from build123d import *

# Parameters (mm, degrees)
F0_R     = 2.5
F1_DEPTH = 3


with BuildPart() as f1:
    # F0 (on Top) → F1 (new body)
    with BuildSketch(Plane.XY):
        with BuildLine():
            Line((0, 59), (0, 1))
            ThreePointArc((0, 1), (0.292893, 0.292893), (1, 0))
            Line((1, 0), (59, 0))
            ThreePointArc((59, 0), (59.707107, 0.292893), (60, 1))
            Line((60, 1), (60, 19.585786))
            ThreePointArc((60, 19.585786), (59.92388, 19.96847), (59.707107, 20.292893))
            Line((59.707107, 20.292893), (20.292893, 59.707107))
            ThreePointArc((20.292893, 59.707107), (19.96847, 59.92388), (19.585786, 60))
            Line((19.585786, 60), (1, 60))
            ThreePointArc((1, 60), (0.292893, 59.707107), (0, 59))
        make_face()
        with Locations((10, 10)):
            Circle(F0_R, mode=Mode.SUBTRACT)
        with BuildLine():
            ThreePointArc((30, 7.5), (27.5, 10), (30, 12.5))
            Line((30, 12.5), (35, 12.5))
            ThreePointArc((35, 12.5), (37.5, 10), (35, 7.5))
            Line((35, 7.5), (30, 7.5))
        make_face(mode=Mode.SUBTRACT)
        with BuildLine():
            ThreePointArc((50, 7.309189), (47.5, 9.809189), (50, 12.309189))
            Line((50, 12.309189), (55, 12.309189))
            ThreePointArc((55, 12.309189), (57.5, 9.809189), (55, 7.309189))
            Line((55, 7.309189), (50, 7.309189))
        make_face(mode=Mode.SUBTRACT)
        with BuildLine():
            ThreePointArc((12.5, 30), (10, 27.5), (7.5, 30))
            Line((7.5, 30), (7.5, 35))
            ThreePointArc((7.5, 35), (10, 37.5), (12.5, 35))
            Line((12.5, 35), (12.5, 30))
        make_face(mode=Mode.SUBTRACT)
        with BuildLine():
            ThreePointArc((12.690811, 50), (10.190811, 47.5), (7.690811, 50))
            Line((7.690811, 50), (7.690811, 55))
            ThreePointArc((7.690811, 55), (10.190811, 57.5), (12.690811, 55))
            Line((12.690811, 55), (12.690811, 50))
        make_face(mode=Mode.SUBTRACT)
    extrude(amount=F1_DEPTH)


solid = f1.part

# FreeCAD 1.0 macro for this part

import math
import FreeCAD as App
import Part
import Sketcher
Q = App.Units.Quantity

doc = App.newDocument("Part")
body = doc.addObject("PartDesign::Body", "Body")

# Sketch on XY plane
sketch1 = body.newObject("Sketcher::SketchObject", "Sketch")
sketch1.AttachmentSupport = (doc.getObject("XY_Plane"), [""])
sketch1.MapMode = "FlatFace"
sketch1.addGeometry([
    Part.LineSegment(App.Vector(0, 59, 0), App.Vector(0, 1, 0)),  # 0
    Part.ArcOfCircle(Part.Circle(App.Vector(1, 1, 0), App.Vector(0, 0, 1), 1), math.radians(180), math.radians(270)),  # 1
    Part.LineSegment(App.Vector(1, 0, 0), App.Vector(59, 0, 0)),  # 2
    Part.ArcOfCircle(Part.Circle(App.Vector(59, 1, 0), App.Vector(0, 0, 1), 1), math.radians(-90), math.radians(0)),  # 3
    Part.LineSegment(App.Vector(60, 1, 0), App.Vector(60, 19.6, 0)),  # 4
    Part.ArcOfCircle(Part.Circle(App.Vector(59, 19.6, 0), App.Vector(0, 0, 1), 1), math.radians(0), math.radians(45)),  # 5
    Part.LineSegment(App.Vector(59.7, 20.3, 0), App.Vector(20.3, 59.7, 0)),  # 6
    Part.ArcOfCircle(Part.Circle(App.Vector(19.6, 59, 0), App.Vector(0, 0, 1), 1), math.radians(45), math.radians(90)),  # 7
    Part.LineSegment(App.Vector(19.6, 60, 0), App.Vector(1, 60, 0)),  # 8
    Part.ArcOfCircle(Part.Circle(App.Vector(1, 59, 0), App.Vector(0, 0, 1), 1), math.radians(90), math.radians(180)),  # 9
    Part.Circle(App.Vector(10, 10, 0), App.Vector(0, 0, 1), 2.5),  # 10
    Part.LineSegment(App.Vector(35, 7.5, 0), App.Vector(30, 7.5, 0)),  # 11
    Part.ArcOfCircle(Part.Circle(App.Vector(30, 10, 0), App.Vector(0, 0, 1), 2.5), math.radians(90), math.radians(270)),  # 12
    Part.LineSegment(App.Vector(30, 12.5, 0), App.Vector(35, 12.5, 0)),  # 13
    Part.ArcOfCircle(Part.Circle(App.Vector(35, 10, 0), App.Vector(0, 0, 1), 2.5), math.radians(-90), math.radians(90)),  # 14
    Part.LineSegment(App.Vector(55, 7.3, 0), App.Vector(50, 7.3, 0)),  # 15
    Part.ArcOfCircle(Part.Circle(App.Vector(50, 9.8, 0), App.Vector(0, 0, 1), 2.5), math.radians(90), math.radians(270)),  # 16
    Part.LineSegment(App.Vector(50, 12.3, 0), App.Vector(55, 12.3, 0)),  # 17
    Part.ArcOfCircle(Part.Circle(App.Vector(55, 9.8, 0), App.Vector(0, 0, 1), 2.5), math.radians(-90), math.radians(90)),  # 18
    Part.LineSegment(App.Vector(12.5, 35, 0), App.Vector(12.5, 30, 0)),  # 19
    Part.ArcOfCircle(Part.Circle(App.Vector(10, 30, 0), App.Vector(0, 0, 1), 2.5), math.radians(180), math.radians(360)),  # 20
    Part.LineSegment(App.Vector(7.5, 30, 0), App.Vector(7.5, 35, 0)),  # 21
    Part.ArcOfCircle(Part.Circle(App.Vector(10, 35, 0), App.Vector(0, 0, 1), 2.5), math.radians(0), math.radians(180)),  # 22
    Part.LineSegment(App.Vector(12.7, 55, 0), App.Vector(12.7, 50, 0)),  # 23
    Part.ArcOfCircle(Part.Circle(App.Vector(10.2, 50, 0), App.Vector(0, 0, 1), 2.5), math.radians(180), math.radians(360)),  # 24
    Part.LineSegment(App.Vector(7.7, 50, 0), App.Vector(7.7, 55, 0)),  # 25
    Part.ArcOfCircle(Part.Circle(App.Vector(10.2, 55, 0), App.Vector(0, 0, 1), 2.5), math.radians(0), math.radians(180)),  # 26
], False)
sketch1.addConstraint([
    Sketcher.Constraint("Tangent", 0, 2, 1, 1),
    Sketcher.Constraint("Tangent", 1, 2, 2, 1),
    Sketcher.Constraint("Tangent", 2, 2, 3, 1),
    Sketcher.Constraint("Tangent", 3, 2, 4, 1),
    Sketcher.Constraint("Coincident", 4, 2, 5, 1),
    Sketcher.Constraint("Coincident", 5, 2, 6, 1),
    Sketcher.Constraint("Coincident", 6, 2, 7, 1),
    Sketcher.Constraint("Coincident", 7, 2, 8, 1),
    Sketcher.Constraint("Tangent", 8, 2, 9, 1),
    Sketcher.Constraint("Tangent", 9, 2, 0, 1),
    Sketcher.Constraint("Tangent", 11, 2, 12, 2),
    Sketcher.Constraint("Tangent", 12, 1, 13, 1),
    Sketcher.Constraint("Tangent", 13, 2, 14, 2),
    Sketcher.Constraint("Tangent", 14, 1, 11, 1),
    Sketcher.Constraint("Tangent", 15, 2, 16, 2),
    Sketcher.Constraint("Tangent", 16, 1, 17, 1),
    Sketcher.Constraint("Tangent", 17, 2, 18, 2),
    Sketcher.Constraint("Tangent", 18, 1, 15, 1),
    Sketcher.Constraint("Tangent", 19, 2, 20, 2),
    Sketcher.Constraint("Tangent", 20, 1, 21, 1),
    Sketcher.Constraint("Tangent", 21, 2, 22, 2),
    Sketcher.Constraint("Tangent", 22, 1, 19, 1),
    Sketcher.Constraint("Tangent", 23, 2, 24, 2),
    Sketcher.Constraint("Tangent", 24, 1, 25, 1),
    Sketcher.Constraint("Tangent", 25, 2, 26, 2),
    Sketcher.Constraint("Tangent", 26, 1, 23, 1),
    Sketcher.Constraint("Vertical", 0),
    Sketcher.Constraint("Horizontal", 2),
    Sketcher.Constraint("Vertical", 4),
    Sketcher.Constraint("Horizontal", 8),
    Sketcher.Constraint("Horizontal", 11),
    Sketcher.Constraint("Horizontal", 13),
    Sketcher.Constraint("Horizontal", 15),
    Sketcher.Constraint("Horizontal", 17),
    Sketcher.Constraint("Vertical", 19),
    Sketcher.Constraint("Vertical", 21),
    Sketcher.Constraint("Vertical", 23),
    Sketcher.Constraint("Vertical", 25),
    Sketcher.Constraint("Equal", 1, 3),
    Sketcher.Constraint("Equal", 5, 7),
    Sketcher.Constraint("Equal", 3, 9),
    Sketcher.Constraint("Equal", 10, 12),
    Sketcher.Constraint("Equal", 14, 16),
    Sketcher.Constraint("Equal", 18, 20),
    Sketcher.Constraint("Equal", 22, 24),
    Sketcher.Constraint("PointOnObject", 0, 2, -2),
    Sketcher.Constraint("PointOnObject", 1, 2, -1),
    Sketcher.Constraint("Horizontal", 10, 3, 12, 3),
    Sketcher.Constraint("Vertical", 10, 3, 20, 3),
    Sketcher.Constraint("Equal", 13, 15),
    Sketcher.Constraint("Equal", 2, 0),
    Sketcher.Constraint("Equal", 8, 4),
    Sketcher.Constraint("Equal", 17, 19),
    Sketcher.Constraint("Equal", 21, 23),
    Sketcher.Constraint("Diameter", 10, Q("5 mm")),
    Sketcher.Constraint("Radius", 1, Q("0.999999 mm")),
    Sketcher.Constraint("DistanceX", 2, 1, 2, 2, Q("58 mm")),
    Sketcher.Constraint("DistanceX", 11, 2, 11, 1, Q("5 mm")),
    Sketcher.Constraint("Angle", 6, Q("135 deg")),
    Sketcher.Constraint("DistanceX", -1, 1, 10, 3, Q("10 mm")),
    Sketcher.Constraint("DistanceY", -1, 1, 10, 3, Q("10 mm")),
    Sketcher.Constraint("DistanceX", -1, 1, 12, 3, Q("30 mm")),
    Sketcher.Constraint("DistanceX", -1, 1, 16, 3, Q("50 mm")),
    Sketcher.Constraint("DistanceY", -1, 1, 20, 3, Q("30 mm")),
    Sketcher.Constraint("DistanceY", -1, 1, 24, 3, Q("50 mm")),
    Sketcher.Constraint("Radius", 5, Q("0.999994 mm")),
    Sketcher.Constraint("DistanceY", 16, 3, 5, 3, Q("9.7766 mm")),
    Sketcher.Constraint("DistanceX", 5, 3, 5, 2, Q("0.707101 mm")),
    Sketcher.Constraint("DistanceY", 7, 3, 6, 2, Q("0.707101 mm")),
    Sketcher.Constraint("DistanceX", 8, 2, 8, 1, Q("18.585786 mm")),
    Sketcher.Constraint("DistanceY", -1, 1, 5, 3, Q("19.585789 mm")),
    Sketcher.Constraint("DistanceX", -1, 1, 24, 3, Q("10.190811 mm")),
])
pad1 = body.newObject("PartDesign::Pad", "Pad")
pad1.Profile = sketch1
pad1.Length = 3

doc.recompute()
